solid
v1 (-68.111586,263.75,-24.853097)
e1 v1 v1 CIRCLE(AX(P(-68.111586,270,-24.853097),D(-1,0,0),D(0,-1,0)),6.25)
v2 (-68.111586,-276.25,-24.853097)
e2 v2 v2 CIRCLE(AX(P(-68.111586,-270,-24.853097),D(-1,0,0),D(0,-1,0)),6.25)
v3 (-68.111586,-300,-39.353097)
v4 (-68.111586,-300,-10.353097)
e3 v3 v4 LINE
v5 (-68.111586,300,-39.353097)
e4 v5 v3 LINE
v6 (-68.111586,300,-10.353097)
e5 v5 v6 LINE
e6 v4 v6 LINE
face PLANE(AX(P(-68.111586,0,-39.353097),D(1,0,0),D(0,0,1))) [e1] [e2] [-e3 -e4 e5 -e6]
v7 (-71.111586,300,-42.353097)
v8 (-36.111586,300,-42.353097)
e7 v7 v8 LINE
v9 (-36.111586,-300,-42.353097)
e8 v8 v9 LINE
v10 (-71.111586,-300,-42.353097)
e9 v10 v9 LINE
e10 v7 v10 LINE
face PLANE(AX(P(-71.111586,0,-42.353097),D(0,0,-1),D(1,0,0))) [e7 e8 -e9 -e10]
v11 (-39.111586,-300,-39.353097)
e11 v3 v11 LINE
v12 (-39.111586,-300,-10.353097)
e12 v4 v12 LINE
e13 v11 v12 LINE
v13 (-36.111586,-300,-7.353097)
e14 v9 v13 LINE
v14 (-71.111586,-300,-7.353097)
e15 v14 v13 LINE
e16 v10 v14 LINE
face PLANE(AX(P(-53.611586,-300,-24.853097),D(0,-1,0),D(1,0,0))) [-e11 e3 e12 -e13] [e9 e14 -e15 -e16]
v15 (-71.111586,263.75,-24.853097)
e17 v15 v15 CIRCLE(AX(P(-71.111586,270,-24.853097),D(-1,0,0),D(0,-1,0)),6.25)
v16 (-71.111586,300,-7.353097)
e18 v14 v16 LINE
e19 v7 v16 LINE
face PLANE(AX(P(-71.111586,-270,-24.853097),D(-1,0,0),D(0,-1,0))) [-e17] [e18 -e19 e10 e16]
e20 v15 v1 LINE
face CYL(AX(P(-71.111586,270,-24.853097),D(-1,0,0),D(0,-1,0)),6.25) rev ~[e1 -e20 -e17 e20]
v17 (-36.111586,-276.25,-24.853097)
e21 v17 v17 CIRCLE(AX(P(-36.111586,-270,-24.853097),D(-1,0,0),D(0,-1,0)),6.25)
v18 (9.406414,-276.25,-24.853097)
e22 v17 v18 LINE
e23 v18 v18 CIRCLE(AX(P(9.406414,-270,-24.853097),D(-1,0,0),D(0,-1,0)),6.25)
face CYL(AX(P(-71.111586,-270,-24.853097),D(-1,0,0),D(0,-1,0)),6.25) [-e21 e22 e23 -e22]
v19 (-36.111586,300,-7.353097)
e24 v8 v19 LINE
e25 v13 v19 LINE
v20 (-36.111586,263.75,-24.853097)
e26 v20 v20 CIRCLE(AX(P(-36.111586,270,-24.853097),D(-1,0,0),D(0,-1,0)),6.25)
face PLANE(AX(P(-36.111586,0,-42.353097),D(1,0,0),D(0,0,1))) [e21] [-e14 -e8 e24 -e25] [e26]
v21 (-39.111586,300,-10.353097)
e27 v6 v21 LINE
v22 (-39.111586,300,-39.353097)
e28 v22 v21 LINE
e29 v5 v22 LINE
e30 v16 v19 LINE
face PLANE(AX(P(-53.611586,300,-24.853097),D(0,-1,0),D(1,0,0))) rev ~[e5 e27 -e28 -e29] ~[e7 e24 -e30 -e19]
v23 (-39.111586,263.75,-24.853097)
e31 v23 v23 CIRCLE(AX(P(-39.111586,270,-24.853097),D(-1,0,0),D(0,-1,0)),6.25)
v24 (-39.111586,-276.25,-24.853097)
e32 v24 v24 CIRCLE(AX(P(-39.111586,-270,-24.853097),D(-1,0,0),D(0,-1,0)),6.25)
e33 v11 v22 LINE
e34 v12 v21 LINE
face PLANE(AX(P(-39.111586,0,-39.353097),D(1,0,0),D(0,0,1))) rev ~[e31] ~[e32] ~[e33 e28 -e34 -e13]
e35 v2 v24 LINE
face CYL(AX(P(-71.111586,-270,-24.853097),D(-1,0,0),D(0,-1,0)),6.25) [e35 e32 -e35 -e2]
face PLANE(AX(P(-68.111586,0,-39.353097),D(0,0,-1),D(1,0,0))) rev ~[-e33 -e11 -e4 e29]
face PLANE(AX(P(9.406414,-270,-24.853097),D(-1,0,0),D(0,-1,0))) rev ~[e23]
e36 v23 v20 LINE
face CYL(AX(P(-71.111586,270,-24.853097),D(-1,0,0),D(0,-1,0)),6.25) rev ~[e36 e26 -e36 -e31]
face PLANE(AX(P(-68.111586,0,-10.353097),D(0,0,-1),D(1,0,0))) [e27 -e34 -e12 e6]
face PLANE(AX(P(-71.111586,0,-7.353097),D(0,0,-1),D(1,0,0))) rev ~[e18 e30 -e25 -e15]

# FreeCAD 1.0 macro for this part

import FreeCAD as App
import Part
import Sketcher

V = App.Vector
Q = App.Units.Quantity

doc = App.newDocument("Part")
params = doc.addObject("Spreadsheet::Sheet", "Params")
for row, (alias, value) in enumerate([
    ("sketch1_width", "35 mm"),
    ("sketch1_width2", "29 mm"),
    ("pad1_length", "600 mm"),
    ("sketch2_diameter", "12.5 mm"),
    ("pocket1_length", "35.56 mm"),
    ("sketch3_diameter", "12.5 mm"),
    ("pad2_length", "80.518 mm"),
], start=1):
    params.set(f"A{row}", alias)
    params.set(f"B{row}", "=" + value)
    params.setAlias(f"B{row}", alias)

body = doc.addObject("PartDesign::Body", "Body")

sketch1 = doc.addObject("Sketcher::SketchObject", "Sketch")
body.addObject(sketch1)
sketch1.AttachmentSupport = (doc.XZ_Plane, [""])
sketch1.MapMode = "FlatFace"
sketch1.addGeometry(Part.LineSegment(V(-71, -7, 0), V(-71, -42, 0)), False)
sketch1.addGeometry(Part.LineSegment(V(-71, -42, 0), V(-36, -42, 0)), False)
sketch1.addGeometry(Part.LineSegment(V(-36, -42, 0), V(-36, -7, 0)), False)
sketch1.addGeometry(Part.LineSegment(V(-36, -7, 0), V(-71, -7, 0)), False)
sketch1.addGeometry(Part.LineSegment(V(-39, -39, 0), V(-68, -39, 0)), False)
sketch1.addGeometry(Part.LineSegment(V(-68, -39, 0), V(-68, -10, 0)), False)
sketch1.addGeometry(Part.LineSegment(V(-68, -10, 0), V(-39, -10, 0)), False)
sketch1.addGeometry(Part.LineSegment(V(-39, -10, 0), V(-39, -39, 0)), False)
sketch1.addConstraint(Sketcher.Constraint("Coincident", 0, 2, 1, 1))
sketch1.addConstraint(Sketcher.Constraint("Coincident", 1, 2, 2, 1))
sketch1.addConstraint(Sketcher.Constraint("Coincident", 2, 2, 3, 1))
sketch1.addConstraint(Sketcher.Constraint("Coincident", 3, 2, 0, 1))
sketch1.addConstraint(Sketcher.Constraint("Coincident", 4, 2, 5, 1))
sketch1.addConstraint(Sketcher.Constraint("Coincident", 5, 2, 6, 1))
sketch1.addConstraint(Sketcher.Constraint("Coincident", 6, 2, 7, 1))
sketch1.addConstraint(Sketcher.Constraint("Coincident", 7, 2, 4, 1))
sketch1.addConstraint(Sketcher.Constraint("Vertical", 0))
sketch1.addConstraint(Sketcher.Constraint("Horizontal", 1))
sketch1.addConstraint(Sketcher.Constraint("Vertical", 2))
sketch1.addConstraint(Sketcher.Constraint("Horizontal", 3))
sketch1.addConstraint(Sketcher.Constraint("Horizontal", 4))
sketch1.addConstraint(Sketcher.Constraint("Vertical", 5))
sketch1.addConstraint(Sketcher.Constraint("Horizontal", 6))
sketch1.addConstraint(Sketcher.Constraint("Vertical", 7))
sketch1.addConstraint(Sketcher.Constraint("Equal", 3, 0))
sketch1.addConstraint(Sketcher.Constraint("Equal", 6, 5))
sketch1.addConstraint(Sketcher.Constraint("DistanceX", 1, 1, 1, 2, Q("35 mm")))
sketch1.addConstraint(Sketcher.Constraint("DistanceX", 4, 2, 4, 1, Q("29 mm")))
sketch1.addConstraint(Sketcher.Constraint("DistanceX", 0, 2, 4, 2, Q("3 mm")))
sketch1.addConstraint(Sketcher.Constraint("DistanceY", 0, 2, 4, 2, Q("3 mm")))
sketch1.addConstraint(Sketcher.Constraint("DistanceX", 0, 2, -1, 1, Q("71.111586 mm")))
sketch1.addConstraint(Sketcher.Constraint("DistanceY", 0, 2, -1, 1, Q("42.353097 mm")))
sketch1.setExpression("Constraints[18]", "Params.sketch1_width")
sketch1.setExpression("Constraints[19]", "Params.sketch1_width2")
pad1 = doc.addObject("PartDesign::Pad", "Pad")
body.addObject(pad1)
pad1.Profile = sketch1
pad1.setExpression("Length", "Params.pad1_length")
pad1.Midplane = True

sketch2 = doc.addObject("Sketcher::SketchObject", "Sketch001")
body.addObject(sketch2)
sketch2.AttachmentSupport = (doc.YZ_Plane, [""])
sketch2.MapMode = "FlatFace"
sketch2.AttachmentOffset = App.Placement(V(0, 0, -71.111586), App.Rotation())
sketch2.addGeometry(Part.Circle(V(270, -25, 0), V(0, 0, 1), 6), False)
sketch2.addConstraint(Sketcher.Constraint("Diameter", 0, Q("12.5 mm")))
sketch2.addConstraint(Sketcher.Constraint("DistanceX", -1, 1, 0, 3, Q("270 mm")))
sketch2.addConstraint(Sketcher.Constraint("DistanceY", 0, 3, -1, 1, Q("24.853097 mm")))
sketch2.setExpression("Constraints[0]", "Params.sketch2_diameter")
pocket1 = doc.addObject("PartDesign::Pocket", "Pocket")
body.addObject(pocket1)
pocket1.Profile = sketch2
pocket1.setExpression("Length", "Params.pocket1_length")
pocket1.Reversed = True

sketch3 = doc.addObject("Sketcher::SketchObject", "Sketch002")
body.addObject(sketch3)
sketch3.AttachmentSupport = (doc.YZ_Plane, [""])
sketch3.MapMode = "FlatFace"
sketch3.AttachmentOffset = App.Placement(V(0, 0, -71.111586), App.Rotation())
sketch3.addGeometry(Part.Circle(V(-270, -25, 0), V(0, 0, 1), 6), False)
sketch3.addConstraint(Sketcher.Constraint("Diameter", 0, Q("12.5 mm")))
sketch3.addConstraint(Sketcher.Constraint("DistanceX", 0, 3, -1, 1, Q("270 mm")))
sketch3.addConstraint(Sketcher.Constraint("DistanceY", 0, 3, -1, 1, Q("24.853097 mm")))
sketch3.setExpression("Constraints[0]", "Params.sketch3_diameter")
pad2 = doc.addObject("PartDesign::Pad", "Pad001")
body.addObject(pad2)
pad2.Profile = sketch3
pad2.setExpression("Length", "Params.pad2_length")

doc.recompute()
